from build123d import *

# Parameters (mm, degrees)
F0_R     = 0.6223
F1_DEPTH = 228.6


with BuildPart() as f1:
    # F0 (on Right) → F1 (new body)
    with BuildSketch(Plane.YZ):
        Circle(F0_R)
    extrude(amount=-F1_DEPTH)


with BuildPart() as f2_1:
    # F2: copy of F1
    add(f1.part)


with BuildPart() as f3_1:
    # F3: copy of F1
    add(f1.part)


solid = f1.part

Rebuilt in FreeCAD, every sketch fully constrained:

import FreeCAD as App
import Part
import Sketcher

V = App.Vector
Q = App.Units.Quantity

doc = App.newDocument("Part")
body = doc.addObject("PartDesign::Body", "Body")

sketch1 = body.newObject("Sketcher::SketchObject", "Sketch")
sketch1.AttachmentSupport = (doc.getObject("YZ_Plane"), [""])
sketch1.MapMode = "FlatFace"
sketch1.addGeometry(Part.Circle(V(0, 0, 0), V(0, 0, 1), 0.6), False)
sketch1.addConstraint([
    Sketcher.Constraint("Coincident", 0, 3, -1, 1),
    Sketcher.Constraint("Diameter", 0, Q("0.049 in")),
])
pad1 = body.newObject("PartDesign::Pad", "Pad")
pad1.Profile = sketch1
pad1.Length = Q("9 in")
pad1.Reversed = True
body2 = doc.addObject("PartDesign::Body", "Body001")
doc.recompute()

body2.BaseFeature = body
doc.recompute()
body3 = doc.addObject("PartDesign::Body", "Body002")
doc.recompute()

body3.BaseFeature = body
doc.recompute()
body.Visibility = False
body2.Visibility = False

doc.recompute()
